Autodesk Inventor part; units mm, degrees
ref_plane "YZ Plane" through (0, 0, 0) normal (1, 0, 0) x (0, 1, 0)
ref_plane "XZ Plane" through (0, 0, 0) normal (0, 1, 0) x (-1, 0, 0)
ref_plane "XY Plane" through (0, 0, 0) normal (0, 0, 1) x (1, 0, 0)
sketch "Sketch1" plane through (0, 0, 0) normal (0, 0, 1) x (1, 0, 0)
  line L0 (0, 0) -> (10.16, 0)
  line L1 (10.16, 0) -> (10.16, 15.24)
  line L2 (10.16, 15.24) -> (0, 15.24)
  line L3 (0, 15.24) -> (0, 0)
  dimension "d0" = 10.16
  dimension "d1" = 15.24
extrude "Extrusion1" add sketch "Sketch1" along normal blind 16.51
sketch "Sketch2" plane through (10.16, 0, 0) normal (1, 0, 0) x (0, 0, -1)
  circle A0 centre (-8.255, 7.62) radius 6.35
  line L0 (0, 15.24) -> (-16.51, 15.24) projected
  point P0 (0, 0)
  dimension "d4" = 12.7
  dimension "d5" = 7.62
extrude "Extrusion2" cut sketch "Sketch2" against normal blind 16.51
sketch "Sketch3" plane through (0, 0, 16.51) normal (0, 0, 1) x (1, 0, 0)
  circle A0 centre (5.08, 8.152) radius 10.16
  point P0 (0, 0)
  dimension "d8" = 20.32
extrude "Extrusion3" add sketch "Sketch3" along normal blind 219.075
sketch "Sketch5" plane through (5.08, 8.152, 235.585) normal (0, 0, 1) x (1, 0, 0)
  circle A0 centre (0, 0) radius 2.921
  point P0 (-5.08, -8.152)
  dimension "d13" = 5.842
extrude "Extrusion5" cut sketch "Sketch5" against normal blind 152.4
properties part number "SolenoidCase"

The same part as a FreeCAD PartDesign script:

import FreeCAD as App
import Part
import Sketcher

V = App.Vector
Q = App.Units.Quantity


def add_polygon(sketch, points):
    """Adds a closed chain of lines whose ends are joined by coincident constraints."""
    first, n = sketch.GeometryCount, len(points)
    for a, b in zip(points, points[1:] + points[:1]):
        sketch.addGeometry(Part.LineSegment(App.Vector(*a, 0), App.Vector(*b, 0)), False)
    for i in range(n):
        sketch.addConstraint(Sketcher.Constraint("Coincident", first + i, 2, first + (i + 1) % n, 1))

doc = App.newDocument("Part")
body = doc.addObject("PartDesign::Body", "Body")

sketch1 = body.newObject("Sketcher::SketchObject", "Sketch")
sketch1.AttachmentSupport = (doc.getObject("XY_Plane"), [""])
sketch1.MapMode = "FlatFace"
add_polygon(sketch1, [(0, 15), (0, 0), (10, 0), (10, 15)])
sketch1.addConstraint([
    Sketcher.Constraint("Vertical", 0),
    Sketcher.Constraint("Horizontal", 1),
    Sketcher.Constraint("Vertical", 2),
    Sketcher.Constraint("Horizontal", 3),
    Sketcher.Constraint("Coincident", 0, 2, -1, 1),
    Sketcher.Constraint("DistanceX", 1, 1, 1, 2, Q("0.4 in")),
    Sketcher.Constraint("DistanceY", 0, 2, 0, 1, Q("0.6 in")),
])
pad1 = body.newObject("PartDesign::Pad", "Pad")
pad1.Profile = sketch1
pad1.Length = Q("0.65 in")

sketch2 = body.newObject("Sketcher::SketchObject", "Sketch001")
sketch2.AttachmentSupport = (doc.getObject("YZ_Plane"), [""])
sketch2.MapMode = "FlatFace"
sketch2.AttachmentOffset = App.Placement(V(0, 0, 0.4 * 25.4), App.Rotation())
sketch2.addGeometry(Part.Circle(V(8, 8, 0), V(0, 0, 1), 6), False)
sketch2.addConstraint([
    Sketcher.Constraint("Diameter", 0, Q("0.5 in")),
    Sketcher.Constraint("DistanceX", -1, 1, 0, 3, Q("0.3 in")),
    Sketcher.Constraint("DistanceY", -1, 1, 0, 3, Q("0.325 in")),
])
pocket1 = body.newObject("PartDesign::Pocket", "Pocket")
pocket1.Profile = sketch2
pocket1.Length = Q("0.65 in")

sketch3 = body.newObject("Sketcher::SketchObject", "Sketch002")
sketch3.AttachmentSupport = (doc.getObject("XY_Plane"), [""])
sketch3.MapMode = "FlatFace"
sketch3.AttachmentOffset = App.Placement(V(0, 0, 0.65 * 25.4), App.Rotation())
sketch3.addGeometry(Part.Circle(V(5, 8, 0), V(0, 0, 1), 10), False)
sketch3.addConstraint([
    Sketcher.Constraint("Diameter", 0, Q("0.8 in")),
    Sketcher.Constraint("DistanceX", -1, 1, 0, 3, Q("0.2 in")),
    Sketcher.Constraint("DistanceY", -1, 1, 0, 3, 8.152),
])
pad2 = body.newObject("PartDesign::Pad", "Pad001")
pad2.Profile = sketch3
pad2.Length = Q("8.625 in")

sketch4 = body.newObject("Sketcher::SketchObject", "Sketch003")
sketch4.AttachmentSupport = (doc.getObject("XY_Plane"), [""])
sketch4.MapMode = "FlatFace"
sketch4.AttachmentOffset = App.Placement(V(0, 0, 9.275 * 25.4), App.Rotation())
sketch4.addGeometry(Part.Circle(V(5.1, 8.2, 0), V(0, 0, 1), 2.9), False)
sketch4.addConstraint([
    Sketcher.Constraint("Diameter", 0, Q("0.23 in")),
    Sketcher.Constraint("DistanceX", -1, 1, 0, 3, Q("0.2 in")),
    Sketcher.Constraint("DistanceY", -1, 1, 0, 3, 8.152),
])
pocket2 = body.newObject("PartDesign::Pocket", "Pocket001")
pocket2.Profile = sketch4
pocket2.Length = Q("6 in")

doc.recompute()
